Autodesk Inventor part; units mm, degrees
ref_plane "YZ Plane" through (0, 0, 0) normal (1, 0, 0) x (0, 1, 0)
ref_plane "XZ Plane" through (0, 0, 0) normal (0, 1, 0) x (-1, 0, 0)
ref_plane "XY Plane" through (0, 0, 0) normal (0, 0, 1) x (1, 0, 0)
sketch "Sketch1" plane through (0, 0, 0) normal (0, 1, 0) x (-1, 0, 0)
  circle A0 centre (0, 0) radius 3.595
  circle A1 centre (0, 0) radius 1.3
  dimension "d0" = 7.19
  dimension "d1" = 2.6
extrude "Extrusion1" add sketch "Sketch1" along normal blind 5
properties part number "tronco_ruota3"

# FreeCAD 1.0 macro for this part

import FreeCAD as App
import Part
import Sketcher

doc = App.newDocument("Part")
body = doc.addObject("PartDesign::Body", "Body")

# Sketch on XZ plane
sketch1 = body.newObject("Sketcher::SketchObject", "Sketch")
sketch1.AttachmentSupport = (doc.getObject("XZ_Plane"), [""])
sketch1.MapMode = "FlatFace"
sketch1.addGeometry([
    Part.Circle(App.Vector(0, 0, 0), App.Vector(0, 0, 1), 3.6),
    Part.Circle(App.Vector(0, 0, 0), App.Vector(0, 0, 1), 1.3),
], False)
sketch1.addConstraint([
    Sketcher.Constraint("Coincident", 0, 3, -1, 1),
    Sketcher.Constraint("Coincident", 1, 3, -1, 1),
    Sketcher.Constraint("Diameter", 1, 2.6),
    Sketcher.Constraint("Diameter", 0, 7.19),
])
pad1 = body.newObject("PartDesign::Pad", "Pad")
pad1.Profile = sketch1
pad1.Length = 5
pad1.Reversed = True

doc.recompute()
